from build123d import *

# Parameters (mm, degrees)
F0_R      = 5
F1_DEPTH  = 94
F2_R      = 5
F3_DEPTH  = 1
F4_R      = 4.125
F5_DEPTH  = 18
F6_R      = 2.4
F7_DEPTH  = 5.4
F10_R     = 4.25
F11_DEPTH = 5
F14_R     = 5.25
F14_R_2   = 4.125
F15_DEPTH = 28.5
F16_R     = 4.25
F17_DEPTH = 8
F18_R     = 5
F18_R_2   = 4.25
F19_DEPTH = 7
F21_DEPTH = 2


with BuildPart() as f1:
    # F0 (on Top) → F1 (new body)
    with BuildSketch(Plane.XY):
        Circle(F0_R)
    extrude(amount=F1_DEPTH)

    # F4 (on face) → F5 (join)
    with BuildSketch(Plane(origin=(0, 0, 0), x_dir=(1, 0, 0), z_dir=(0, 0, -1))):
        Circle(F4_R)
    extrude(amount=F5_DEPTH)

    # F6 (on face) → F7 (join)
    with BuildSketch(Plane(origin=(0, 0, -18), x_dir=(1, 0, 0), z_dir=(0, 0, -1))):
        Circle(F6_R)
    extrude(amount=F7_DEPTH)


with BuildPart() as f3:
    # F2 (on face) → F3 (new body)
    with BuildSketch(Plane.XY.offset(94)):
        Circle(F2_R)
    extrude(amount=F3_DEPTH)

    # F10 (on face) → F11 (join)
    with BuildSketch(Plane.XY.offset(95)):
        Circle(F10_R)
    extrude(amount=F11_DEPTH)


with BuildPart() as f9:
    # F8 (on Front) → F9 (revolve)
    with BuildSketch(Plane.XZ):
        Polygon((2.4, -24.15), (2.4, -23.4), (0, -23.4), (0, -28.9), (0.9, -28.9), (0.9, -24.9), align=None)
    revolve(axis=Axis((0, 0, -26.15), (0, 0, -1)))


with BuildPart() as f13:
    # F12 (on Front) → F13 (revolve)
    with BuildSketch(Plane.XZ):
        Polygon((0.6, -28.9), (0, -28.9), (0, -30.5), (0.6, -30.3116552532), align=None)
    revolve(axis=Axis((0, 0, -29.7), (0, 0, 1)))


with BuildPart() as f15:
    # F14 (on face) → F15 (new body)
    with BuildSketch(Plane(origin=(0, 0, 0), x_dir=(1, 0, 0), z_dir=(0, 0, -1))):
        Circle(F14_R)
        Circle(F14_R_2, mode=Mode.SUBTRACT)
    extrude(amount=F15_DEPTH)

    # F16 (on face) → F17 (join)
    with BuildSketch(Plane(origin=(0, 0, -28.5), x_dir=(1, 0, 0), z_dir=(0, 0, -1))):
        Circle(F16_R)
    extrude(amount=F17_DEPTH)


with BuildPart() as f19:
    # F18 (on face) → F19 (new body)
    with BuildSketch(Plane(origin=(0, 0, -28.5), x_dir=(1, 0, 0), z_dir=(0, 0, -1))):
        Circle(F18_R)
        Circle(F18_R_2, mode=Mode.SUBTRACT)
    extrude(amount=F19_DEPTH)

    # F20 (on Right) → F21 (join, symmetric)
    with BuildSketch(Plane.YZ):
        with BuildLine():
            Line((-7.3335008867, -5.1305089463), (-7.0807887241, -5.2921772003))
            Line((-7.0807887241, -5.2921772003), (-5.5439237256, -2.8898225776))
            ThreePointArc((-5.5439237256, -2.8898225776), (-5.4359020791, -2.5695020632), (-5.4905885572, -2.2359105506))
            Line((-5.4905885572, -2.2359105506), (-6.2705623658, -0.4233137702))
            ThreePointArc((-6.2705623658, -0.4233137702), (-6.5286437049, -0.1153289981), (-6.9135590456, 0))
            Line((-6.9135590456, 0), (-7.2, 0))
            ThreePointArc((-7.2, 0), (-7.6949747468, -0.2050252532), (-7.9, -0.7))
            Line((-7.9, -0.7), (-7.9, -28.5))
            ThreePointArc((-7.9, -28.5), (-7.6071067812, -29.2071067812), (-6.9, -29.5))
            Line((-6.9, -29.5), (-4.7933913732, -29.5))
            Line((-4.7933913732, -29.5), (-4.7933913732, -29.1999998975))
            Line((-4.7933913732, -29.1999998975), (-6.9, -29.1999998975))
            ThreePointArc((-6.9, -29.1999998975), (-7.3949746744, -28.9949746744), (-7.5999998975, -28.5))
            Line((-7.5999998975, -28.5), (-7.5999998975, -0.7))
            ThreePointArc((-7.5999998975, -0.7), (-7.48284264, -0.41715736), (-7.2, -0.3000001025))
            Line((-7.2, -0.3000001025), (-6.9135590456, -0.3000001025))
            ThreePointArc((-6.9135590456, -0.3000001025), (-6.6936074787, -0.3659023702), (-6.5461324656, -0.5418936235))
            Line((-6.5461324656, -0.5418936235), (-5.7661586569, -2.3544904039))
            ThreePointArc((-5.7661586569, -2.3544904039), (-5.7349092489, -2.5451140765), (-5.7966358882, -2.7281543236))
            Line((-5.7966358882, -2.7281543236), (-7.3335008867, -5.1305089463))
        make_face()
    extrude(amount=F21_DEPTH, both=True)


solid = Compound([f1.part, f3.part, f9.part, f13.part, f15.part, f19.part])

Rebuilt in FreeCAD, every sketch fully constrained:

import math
import FreeCAD as App
import Part
import Sketcher

V = App.Vector
Q = App.Units.Quantity


def add_polygon(sketch, points):
    """Adds a closed chain of lines whose ends are joined by coincident constraints."""
    first, n = sketch.GeometryCount, len(points)
    for a, b in zip(points, points[1:] + points[:1]):
        sketch.addGeometry(Part.LineSegment(App.Vector(*a, 0), App.Vector(*b, 0)), False)
    for i in range(n):
        sketch.addConstraint(Sketcher.Constraint("Coincident", first + i, 2, first + (i + 1) % n, 1))

doc = App.newDocument("Part")
params = doc.addObject("Spreadsheet::Sheet", "Params")
for row, (alias, value) in enumerate([
    ("sketch1_diameter", "10 mm"),
    ("pad1_length", "94 mm"),
    ("sketch2_diameter", "8.25 mm"),
    ("pad2_length", "18 mm"),
    ("sketch3_diameter", "4.8 mm"),
    ("pad3_length", "5.4 mm"),
    ("sketch4_diameter", "10 mm"),
    ("pad4_length", "1 mm"),
    ("sketch5_diameter", "8.5 mm"),
    ("pad5_length", "5 mm"),
    ("sketch6_height", "4 mm"),
    ("sketch6_width", "2.4 mm"),
    ("sketch6_width2", "0.9 mm"),
    ("sketch6_height2", "5.5 mm"),
    ("sketch6_height3", "0.75 mm"),
    ("revolution_angle", "360 deg"),
    ("sketch7_width", "0.6 mm"),
    ("sketch7_height", "1.6 mm"),
    ("revolution2_angle", "360 deg"),
    ("sketch8_diameter", "10.5 mm"),
    ("sketch8_diameter2", "8.25 mm"),
    ("pad6_length", "28.5 mm"),
    ("sketch9_diameter", "8.5 mm"),
    ("pad7_length", "8 mm"),
    ("sketch10_diameter", "10 mm"),
    ("sketch10_diameter2", "8.5 mm"),
    ("pad8_length", "7 mm"),
    ("sketch11_radius", "1 mm"),
    ("sketch11_radius2", "0.7 mm"),
    ("sketch11_height", "27.8 mm"),
    ("pad9_length", "4 mm"),
], start=1):
    params.set(f"A{row}", alias)
    params.set(f"B{row}", "=" + value)
    params.setAlias(f"B{row}", alias)

body = doc.addObject("PartDesign::Body", "Body")

# Sketch on XY plane
sketch1 = doc.addObject("Sketcher::SketchObject", "Sketch")
body.addObject(sketch1)
sketch1.AttachmentSupport = (doc.XY_Plane, [""])
sketch1.MapMode = "FlatFace"
sketch1.addGeometry(Part.Circle(V(0, 0, 0), V(0, 0, 1), 5), False)
sketch1.addConstraint([
    Sketcher.Constraint("Coincident", 0, 3, -1, 1),
    Sketcher.Constraint("Diameter", 0, Q("10 mm")),
])
sketch1.setExpression("Constraints[1]", "Params.sketch1_diameter")
pad1 = doc.addObject("PartDesign::Pad", "Pad")
body.addObject(pad1)
pad1.Profile = sketch1
pad1.setExpression("Length", "Params.pad1_length")

# Sketch on XY plane
sketch2 = doc.addObject("Sketcher::SketchObject", "Sketch001")
body.addObject(sketch2)
sketch2.AttachmentSupport = (doc.XY_Plane, [""])
sketch2.MapMode = "FlatFace"
sketch2.addGeometry(Part.Circle(V(0, 0, 0), V(0, 0, 1), 4.1), False)
sketch2.addConstraint([
    Sketcher.Constraint("Coincident", 0, 3, -1, 1),
    Sketcher.Constraint("Diameter", 0, Q("8.25 mm")),
])
sketch2.setExpression("Constraints[1]", "Params.sketch2_diameter")
pad2 = doc.addObject("PartDesign::Pad", "Pad001")
body.addObject(pad2)
pad2.Profile = sketch2
pad2.setExpression("Length", "Params.pad2_length")
pad2.Reversed = True

# Sketch on XY plane
sketch3 = doc.addObject("Sketcher::SketchObject", "Sketch002")
body.addObject(sketch3)
sketch3.AttachmentSupport = (doc.XY_Plane, [""])
sketch3.MapMode = "FlatFace"
sketch3.AttachmentOffset = App.Placement(V(0, 0, -18), App.Rotation())
sketch3.addGeometry(Part.Circle(V(0, 0, 0), V(0, 0, 1), 2.4), False)
sketch3.addConstraint([
    Sketcher.Constraint("Coincident", 0, 3, -1, 1),
    Sketcher.Constraint("Diameter", 0, Q("4.8 mm")),
])
sketch3.setExpression("Constraints[1]", "Params.sketch3_diameter")
pad3 = doc.addObject("PartDesign::Pad", "Pad002")
body.addObject(pad3)
pad3.Profile = sketch3
pad3.setExpression("Length", "Params.pad3_length")
pad3.Reversed = True
body2 = doc.addObject("PartDesign::Body", "Body001")

# Sketch on XY plane
sketch4 = doc.addObject("Sketcher::SketchObject", "Sketch003")
body2.addObject(sketch4)
sketch4.AttachmentSupport = (doc.getObject("XY_Plane001"), [""])
sketch4.MapMode = "FlatFace"
sketch4.AttachmentOffset = App.Placement(V(0, 0, 94), App.Rotation())
sketch4.addGeometry(Part.Circle(V(0, 0, 0), V(0, 0, 1), 5), False)
sketch4.addConstraint([
    Sketcher.Constraint("Coincident", 0, 3, -1, 1),
    Sketcher.Constraint("Diameter", 0, Q("10 mm")),
])
sketch4.setExpression("Constraints[1]", "Params.sketch4_diameter")
pad4 = doc.addObject("PartDesign::Pad", "Pad003")
body2.addObject(pad4)
pad4.Profile = sketch4
pad4.setExpression("Length", "Params.pad4_length")

# Sketch on XY plane
sketch5 = doc.addObject("Sketcher::SketchObject", "Sketch004")
body2.addObject(sketch5)
sketch5.AttachmentSupport = (doc.getObject("XY_Plane001"), [""])
sketch5.MapMode = "FlatFace"
sketch5.AttachmentOffset = App.Placement(V(0, 0, 95), App.Rotation())
sketch5.addGeometry(Part.Circle(V(0, 0, 0), V(0, 0, 1), 4.2), False)
sketch5.addConstraint([
    Sketcher.Constraint("Coincident", 0, 3, -1, 1),
    Sketcher.Constraint("Diameter", 0, Q("8.5 mm")),
])
sketch5.setExpression("Constraints[1]", "Params.sketch5_diameter")
pad5 = doc.addObject("PartDesign::Pad", "Pad004")
body2.addObject(pad5)
pad5.Profile = sketch5
pad5.setExpression("Length", "Params.pad5_length")
body3 = doc.addObject("PartDesign::Body", "Body002")

# Sketch on XZ plane
sketch6 = doc.addObject("Sketcher::SketchObject", "Sketch005")
body3.addObject(sketch6)
sketch6.AttachmentSupport = (doc.getObject("XZ_Plane002"), [""])
sketch6.MapMode = "FlatFace"
add_polygon(sketch6, [(2.4, -24.1), (2.4, -23.4), (0, -23.4), (0, -28.9), (0.9, -28.9), (0.9, -24.9)])  # lines 0-5
sketch6.addConstraint([
    Sketcher.Constraint("Vertical", 0),
    Sketcher.Constraint("Horizontal", 1),
    Sketcher.Constraint("Vertical", 2),
    Sketcher.Constraint("Horizontal", 3),
    Sketcher.Constraint("Vertical", 4),
    Sketcher.Constraint("PointOnObject", 1, 2, -2),
    Sketcher.Constraint("DistanceY", 4, 1, 4, 2, Q("4 mm")),
    Sketcher.Constraint("DistanceX", 1, 2, 1, 1, Q("2.4 mm")),
    Sketcher.Constraint("DistanceX", 3, 1, 3, 2, Q("0.9 mm")),
    Sketcher.Constraint("DistanceY", 2, 2, 2, 1, Q("5.5 mm")),
    Sketcher.Constraint("DistanceY", 0, 1, 0, 2, Q("0.75 mm")),
    Sketcher.Constraint("DistanceY", 0, 2, -1, 1, Q("23.4 mm")),
])
sketch6.setExpression("Constraints[12]", "Params.sketch6_height")
sketch6.setExpression("Constraints[13]", "Params.sketch6_width")
sketch6.setExpression("Constraints[14]", "Params.sketch6_width2")
sketch6.setExpression("Constraints[15]", "Params.sketch6_height2")
sketch6.setExpression("Constraints[16]", "Params.sketch6_height3")
revolution = doc.addObject("PartDesign::Revolution", "Revolution")
body3.addObject(revolution)
revolution.Profile = sketch6
revolution.ReferenceAxis = (sketch6, ["V_Axis"])
revolution.setExpression("Angle", "Params.revolution_angle")
body4 = doc.addObject("PartDesign::Body", "Body003")

# Sketch on XZ plane
sketch7 = doc.addObject("Sketcher::SketchObject", "Sketch006")
body4.addObject(sketch7)
sketch7.AttachmentSupport = (doc.getObject("XZ_Plane003"), [""])
sketch7.MapMode = "FlatFace"
add_polygon(sketch7, [(0.6, -28.9), (0, -28.9), (0, -30.5), (0.6, -30.3)])  # lines 0-3
sketch7.addConstraint([
    Sketcher.Constraint("Horizontal", 0),
    Sketcher.Constraint("Vertical", 1),
    Sketcher.Constraint("Vertical", 3),
    Sketcher.Constraint("PointOnObject", 0, 2, -2),
    Sketcher.Constraint("DistanceX", 0, 2, 0, 1, Q("0.6 mm")),
    Sketcher.Constraint("DistanceY", 1, 2, 1, 1, Q("1.6 mm")),
    Sketcher.Constraint("DistanceY", 0, 2, -1, 1, Q("28.9 mm")),
    Sketcher.Constraint("DistanceY", 3, 1, 3, 2, Q("1.411655 mm")),
])
sketch7.setExpression("Constraints[8]", "Params.sketch7_width")
sketch7.setExpression("Constraints[9]", "Params.sketch7_height")
revolution2 = doc.addObject("PartDesign::Revolution", "Revolution001")
body4.addObject(revolution2)
revolution2.Profile = sketch7
revolution2.ReferenceAxis = (sketch7, ["V_Axis"])
revolution2.setExpression("Angle", "Params.revolution2_angle")
body5 = doc.addObject("PartDesign::Body", "Body004")

# Sketch on XY plane
sketch8 = doc.addObject("Sketcher::SketchObject", "Sketch007")
body5.addObject(sketch8)
sketch8.AttachmentSupport = (doc.getObject("XY_Plane004"), [""])
sketch8.MapMode = "FlatFace"
sketch8.addGeometry([
    Part.Circle(V(0, 0, 0), V(0, 0, 1), 5.2),
    Part.Circle(V(0, 0, 0), V(0, 0, 1), 4.1),
], False)
sketch8.addConstraint([
    Sketcher.Constraint("Coincident", 0, 3, -1, 1),
    Sketcher.Constraint("Coincident", 1, 3, -1, 1),
    Sketcher.Constraint("Diameter", 0, Q("10.5 mm")),
    Sketcher.Constraint("Diameter", 1, Q("8.25 mm")),
])
sketch8.setExpression("Constraints[2]", "Params.sketch8_diameter")
sketch8.setExpression("Constraints[3]", "Params.sketch8_diameter2")
pad6 = doc.addObject("PartDesign::Pad", "Pad005")
body5.addObject(pad6)
pad6.Profile = sketch8
pad6.setExpression("Length", "Params.pad6_length")
pad6.Reversed = True

# Sketch on XY plane
sketch9 = doc.addObject("Sketcher::SketchObject", "Sketch008")
body5.addObject(sketch9)
sketch9.AttachmentSupport = (doc.getObject("XY_Plane004"), [""])
sketch9.MapMode = "FlatFace"
sketch9.AttachmentOffset = App.Placement(V(0, 0, -28.5), App.Rotation())
sketch9.addGeometry(Part.Circle(V(0, 0, 0), V(0, 0, 1), 4.2), False)
sketch9.addConstraint([
    Sketcher.Constraint("Coincident", 0, 3, -1, 1),
    Sketcher.Constraint("Diameter", 0, Q("8.5 mm")),
])
sketch9.setExpression("Constraints[1]", "Params.sketch9_diameter")
pad7 = doc.addObject("PartDesign::Pad", "Pad006")
body5.addObject(pad7)
pad7.Profile = sketch9
pad7.setExpression("Length", "Params.pad7_length")
pad7.Reversed = True
body6 = doc.addObject("PartDesign::Body", "Body005")

# Sketch on XY plane
sketch10 = doc.addObject("Sketcher::SketchObject", "Sketch009")
body6.addObject(sketch10)
sketch10.AttachmentSupport = (doc.getObject("XY_Plane005"), [""])
sketch10.MapMode = "FlatFace"
sketch10.AttachmentOffset = App.Placement(V(0, 0, -28.5), App.Rotation())
sketch10.addGeometry([
    Part.Circle(V(0, 0, 0), V(0, 0, 1), 5),
    Part.Circle(V(0, 0, 0), V(0, 0, 1), 4.2),
], False)
sketch10.addConstraint([
    Sketcher.Constraint("Coincident", 0, 3, -1, 1),
    Sketcher.Constraint("Coincident", 1, 3, -1, 1),
    Sketcher.Constraint("Diameter", 0, Q("10 mm")),
    Sketcher.Constraint("Diameter", 1, Q("8.5 mm")),
])
sketch10.setExpression("Constraints[2]", "Params.sketch10_diameter")
sketch10.setExpression("Constraints[3]", "Params.sketch10_diameter2")
pad8 = doc.addObject("PartDesign::Pad", "Pad007")
body6.addObject(pad8)
pad8.Profile = sketch10
pad8.setExpression("Length", "Params.pad8_length")
pad8.Reversed = True

# Sketch on YZ plane
sketch11 = doc.addObject("Sketcher::SketchObject", "Sketch010")
body6.addObject(sketch11)
sketch11.AttachmentSupport = (doc.getObject("YZ_Plane005"), [""])
sketch11.MapMode = "FlatFace"
sketch11.addGeometry([
    Part.LineSegment(V(-7.33, -5.13, 0), V(-7.08, -5.29, 0)),  # 0
    Part.LineSegment(V(-7.08, -5.29, 0), V(-5.54, -2.89, 0)),  # 1
    Part.ArcOfCircle(Part.Circle(V(-6.13, -2.51, 0), V(0, 0, 1), 0.7), math.radians(-33), math.radians(23)),  # 2
    Part.LineSegment(V(-5.49, -2.24, 0), V(-6.27, -0.42, 0)),  # 3
    Part.ArcOfCircle(Part.Circle(V(-6.91, -0.7, 0), V(0, 0, 1), 0.7), math.radians(23), math.radians(90)),  # 4
    Part.LineSegment(V(-6.91, 0, 0), V(-7.2, 0, 0)),  # 5
    Part.ArcOfCircle(Part.Circle(V(-7.2, -0.7, 0), V(0, 0, 1), 0.7), math.radians(90), math.radians(180)),  # 6
    Part.LineSegment(V(-7.9, -0.7, 0), V(-7.9, -28.5, 0)),  # 7
    Part.ArcOfCircle(Part.Circle(V(-6.9, -28.5, 0), V(0, 0, 1), 1), math.radians(180), math.radians(270)),  # 8
    Part.LineSegment(V(-6.9, -29.5, 0), V(-4.79, -29.5, 0)),  # 9
    Part.LineSegment(V(-4.79, -29.5, 0), V(-4.79, -29.2, 0)),  # 10
    Part.LineSegment(V(-4.79, -29.2, 0), V(-6.9, -29.2, 0)),  # 11
    Part.ArcOfCircle(Part.Circle(V(-6.9, -28.5, 0), V(0, 0, 1), 0.7), math.radians(180), math.radians(270)),  # 12
    Part.LineSegment(V(-7.6, -28.5, 0), V(-7.6, -0.7, 0)),  # 13
    Part.ArcOfCircle(Part.Circle(V(-7.2, -0.7, 0), V(0, 0, 1), 0.4), math.radians(90), math.radians(180)),  # 14
    Part.LineSegment(V(-7.2, -0.3, 0), V(-6.91, -0.3, 0)),  # 15
    Part.ArcOfCircle(Part.Circle(V(-6.91, -0.7, 0), V(0, 0, 1), 0.4), math.radians(23), math.radians(90)),  # 16
    Part.LineSegment(V(-6.55, -0.54, 0), V(-5.77, -2.35, 0)),  # 17
    Part.ArcOfCircle(Part.Circle(V(-6.13, -2.51, 0), V(0, 0, 1), 0.4), math.radians(-33), math.radians(23)),  # 18
    Part.LineSegment(V(-5.8, -2.73, 0), V(-7.33, -5.13, 0)),  # 19
], False)
sketch11.addConstraint([
    Sketcher.Constraint("Coincident", 0, 2, 1, 1),
    Sketcher.Constraint("Tangent", 1, 2, 2, 1),
    Sketcher.Constraint("Tangent", 2, 2, 3, 1),
    Sketcher.Constraint("Tangent", 3, 2, 4, 1),
    Sketcher.Constraint("Tangent", 4, 2, 5, 1),
    Sketcher.Constraint("Tangent", 5, 2, 6, 1),
    Sketcher.Constraint("Tangent", 6, 2, 7, 1),
    Sketcher.Constraint("Tangent", 7, 2, 8, 1),
    Sketcher.Constraint("Tangent", 8, 2, 9, 1),
    Sketcher.Constraint("Coincident", 9, 2, 10, 1),
    Sketcher.Constraint("Coincident", 10, 2, 11, 1),
    Sketcher.Constraint("Tangent", 11, 2, 12, 2),
    Sketcher.Constraint("Tangent", 12, 1, 13, 1),
    Sketcher.Constraint("Tangent", 13, 2, 14, 2),
    Sketcher.Constraint("Tangent", 14, 1, 15, 1),
    Sketcher.Constraint("Tangent", 15, 2, 16, 2),
    Sketcher.Constraint("Tangent", 16, 1, 17, 1),
    Sketcher.Constraint("Tangent", 17, 2, 18, 2),
    Sketcher.Constraint("Tangent", 18, 1, 19, 1),
    Sketcher.Constraint("Coincident", 19, 2, 0, 1),
    Sketcher.Constraint("Horizontal", 5),
    Sketcher.Constraint("Vertical", 7),
    Sketcher.Constraint("Horizontal", 9),
    Sketcher.Constraint("Vertical", 10),
    Sketcher.Constraint("Horizontal", 11),
    Sketcher.Constraint("Vertical", 13),
    Sketcher.Constraint("Horizontal", 15),
    Sketcher.Constraint("Coincident", 12, 3, 8, 3),
    Sketcher.Constraint("Coincident", 14, 3, 6, 3),
    Sketcher.Constraint("Coincident", 16, 3, 4, 3),
    Sketcher.Constraint("Coincident", 18, 3, 2, 3),
    Sketcher.Constraint("Equal", 2, 4),
    Sketcher.Constraint("Equal", 4, 6),
    Sketcher.Constraint("Equal", 6, 12),
    Sketcher.Constraint("Equal", 16, 18),
    Sketcher.Constraint("PointOnObject", 4, 2, -1),
    Sketcher.Constraint("Perpendicular", 0, 1),
    Sketcher.Constraint("Parallel", 1, 19),
    Sketcher.Constraint("Radius", 8, Q("1 mm")),
    Sketcher.Constraint("Radius", 2, Q("0.7 mm")),
    Sketcher.Constraint("DistanceY", 7, 2, 7, 1, Q("27.8 mm")),
    Sketcher.Constraint("DistanceX", 6, 3, -1, 1, Q("7.2 mm")),
    Sketcher.Constraint("DistanceX", 5, 2, 5, 1, Q("0.286441 mm")),
    Sketcher.Constraint("DistanceX", 9, 1, 9, 2, Q("2.106609 mm")),
    Sketcher.Constraint("DistanceX", 19, 2, -1, 1, Q("7.333501 mm")),
    Sketcher.Constraint("Distance", 3, Q("1.973288 mm")),
    Sketcher.Constraint("DistanceX", 0, 2, -1, 1, Q("7.080789 mm")),
    Sketcher.Constraint("DistanceX", 2, 2, -1, 1, Q("5.490589 mm")),
])
sketch11.setExpression("Constraints[38]", "Params.sketch11_radius")
sketch11.setExpression("Constraints[39]", "Params.sketch11_radius2")
sketch11.setExpression("Constraints[40]", "Params.sketch11_height")
pad9 = doc.addObject("PartDesign::Pad", "Pad008")
body6.addObject(pad9)
pad9.Profile = sketch11
pad9.setExpression("Length", "Params.pad9_length")
pad9.Midplane = True

doc.recompute()
